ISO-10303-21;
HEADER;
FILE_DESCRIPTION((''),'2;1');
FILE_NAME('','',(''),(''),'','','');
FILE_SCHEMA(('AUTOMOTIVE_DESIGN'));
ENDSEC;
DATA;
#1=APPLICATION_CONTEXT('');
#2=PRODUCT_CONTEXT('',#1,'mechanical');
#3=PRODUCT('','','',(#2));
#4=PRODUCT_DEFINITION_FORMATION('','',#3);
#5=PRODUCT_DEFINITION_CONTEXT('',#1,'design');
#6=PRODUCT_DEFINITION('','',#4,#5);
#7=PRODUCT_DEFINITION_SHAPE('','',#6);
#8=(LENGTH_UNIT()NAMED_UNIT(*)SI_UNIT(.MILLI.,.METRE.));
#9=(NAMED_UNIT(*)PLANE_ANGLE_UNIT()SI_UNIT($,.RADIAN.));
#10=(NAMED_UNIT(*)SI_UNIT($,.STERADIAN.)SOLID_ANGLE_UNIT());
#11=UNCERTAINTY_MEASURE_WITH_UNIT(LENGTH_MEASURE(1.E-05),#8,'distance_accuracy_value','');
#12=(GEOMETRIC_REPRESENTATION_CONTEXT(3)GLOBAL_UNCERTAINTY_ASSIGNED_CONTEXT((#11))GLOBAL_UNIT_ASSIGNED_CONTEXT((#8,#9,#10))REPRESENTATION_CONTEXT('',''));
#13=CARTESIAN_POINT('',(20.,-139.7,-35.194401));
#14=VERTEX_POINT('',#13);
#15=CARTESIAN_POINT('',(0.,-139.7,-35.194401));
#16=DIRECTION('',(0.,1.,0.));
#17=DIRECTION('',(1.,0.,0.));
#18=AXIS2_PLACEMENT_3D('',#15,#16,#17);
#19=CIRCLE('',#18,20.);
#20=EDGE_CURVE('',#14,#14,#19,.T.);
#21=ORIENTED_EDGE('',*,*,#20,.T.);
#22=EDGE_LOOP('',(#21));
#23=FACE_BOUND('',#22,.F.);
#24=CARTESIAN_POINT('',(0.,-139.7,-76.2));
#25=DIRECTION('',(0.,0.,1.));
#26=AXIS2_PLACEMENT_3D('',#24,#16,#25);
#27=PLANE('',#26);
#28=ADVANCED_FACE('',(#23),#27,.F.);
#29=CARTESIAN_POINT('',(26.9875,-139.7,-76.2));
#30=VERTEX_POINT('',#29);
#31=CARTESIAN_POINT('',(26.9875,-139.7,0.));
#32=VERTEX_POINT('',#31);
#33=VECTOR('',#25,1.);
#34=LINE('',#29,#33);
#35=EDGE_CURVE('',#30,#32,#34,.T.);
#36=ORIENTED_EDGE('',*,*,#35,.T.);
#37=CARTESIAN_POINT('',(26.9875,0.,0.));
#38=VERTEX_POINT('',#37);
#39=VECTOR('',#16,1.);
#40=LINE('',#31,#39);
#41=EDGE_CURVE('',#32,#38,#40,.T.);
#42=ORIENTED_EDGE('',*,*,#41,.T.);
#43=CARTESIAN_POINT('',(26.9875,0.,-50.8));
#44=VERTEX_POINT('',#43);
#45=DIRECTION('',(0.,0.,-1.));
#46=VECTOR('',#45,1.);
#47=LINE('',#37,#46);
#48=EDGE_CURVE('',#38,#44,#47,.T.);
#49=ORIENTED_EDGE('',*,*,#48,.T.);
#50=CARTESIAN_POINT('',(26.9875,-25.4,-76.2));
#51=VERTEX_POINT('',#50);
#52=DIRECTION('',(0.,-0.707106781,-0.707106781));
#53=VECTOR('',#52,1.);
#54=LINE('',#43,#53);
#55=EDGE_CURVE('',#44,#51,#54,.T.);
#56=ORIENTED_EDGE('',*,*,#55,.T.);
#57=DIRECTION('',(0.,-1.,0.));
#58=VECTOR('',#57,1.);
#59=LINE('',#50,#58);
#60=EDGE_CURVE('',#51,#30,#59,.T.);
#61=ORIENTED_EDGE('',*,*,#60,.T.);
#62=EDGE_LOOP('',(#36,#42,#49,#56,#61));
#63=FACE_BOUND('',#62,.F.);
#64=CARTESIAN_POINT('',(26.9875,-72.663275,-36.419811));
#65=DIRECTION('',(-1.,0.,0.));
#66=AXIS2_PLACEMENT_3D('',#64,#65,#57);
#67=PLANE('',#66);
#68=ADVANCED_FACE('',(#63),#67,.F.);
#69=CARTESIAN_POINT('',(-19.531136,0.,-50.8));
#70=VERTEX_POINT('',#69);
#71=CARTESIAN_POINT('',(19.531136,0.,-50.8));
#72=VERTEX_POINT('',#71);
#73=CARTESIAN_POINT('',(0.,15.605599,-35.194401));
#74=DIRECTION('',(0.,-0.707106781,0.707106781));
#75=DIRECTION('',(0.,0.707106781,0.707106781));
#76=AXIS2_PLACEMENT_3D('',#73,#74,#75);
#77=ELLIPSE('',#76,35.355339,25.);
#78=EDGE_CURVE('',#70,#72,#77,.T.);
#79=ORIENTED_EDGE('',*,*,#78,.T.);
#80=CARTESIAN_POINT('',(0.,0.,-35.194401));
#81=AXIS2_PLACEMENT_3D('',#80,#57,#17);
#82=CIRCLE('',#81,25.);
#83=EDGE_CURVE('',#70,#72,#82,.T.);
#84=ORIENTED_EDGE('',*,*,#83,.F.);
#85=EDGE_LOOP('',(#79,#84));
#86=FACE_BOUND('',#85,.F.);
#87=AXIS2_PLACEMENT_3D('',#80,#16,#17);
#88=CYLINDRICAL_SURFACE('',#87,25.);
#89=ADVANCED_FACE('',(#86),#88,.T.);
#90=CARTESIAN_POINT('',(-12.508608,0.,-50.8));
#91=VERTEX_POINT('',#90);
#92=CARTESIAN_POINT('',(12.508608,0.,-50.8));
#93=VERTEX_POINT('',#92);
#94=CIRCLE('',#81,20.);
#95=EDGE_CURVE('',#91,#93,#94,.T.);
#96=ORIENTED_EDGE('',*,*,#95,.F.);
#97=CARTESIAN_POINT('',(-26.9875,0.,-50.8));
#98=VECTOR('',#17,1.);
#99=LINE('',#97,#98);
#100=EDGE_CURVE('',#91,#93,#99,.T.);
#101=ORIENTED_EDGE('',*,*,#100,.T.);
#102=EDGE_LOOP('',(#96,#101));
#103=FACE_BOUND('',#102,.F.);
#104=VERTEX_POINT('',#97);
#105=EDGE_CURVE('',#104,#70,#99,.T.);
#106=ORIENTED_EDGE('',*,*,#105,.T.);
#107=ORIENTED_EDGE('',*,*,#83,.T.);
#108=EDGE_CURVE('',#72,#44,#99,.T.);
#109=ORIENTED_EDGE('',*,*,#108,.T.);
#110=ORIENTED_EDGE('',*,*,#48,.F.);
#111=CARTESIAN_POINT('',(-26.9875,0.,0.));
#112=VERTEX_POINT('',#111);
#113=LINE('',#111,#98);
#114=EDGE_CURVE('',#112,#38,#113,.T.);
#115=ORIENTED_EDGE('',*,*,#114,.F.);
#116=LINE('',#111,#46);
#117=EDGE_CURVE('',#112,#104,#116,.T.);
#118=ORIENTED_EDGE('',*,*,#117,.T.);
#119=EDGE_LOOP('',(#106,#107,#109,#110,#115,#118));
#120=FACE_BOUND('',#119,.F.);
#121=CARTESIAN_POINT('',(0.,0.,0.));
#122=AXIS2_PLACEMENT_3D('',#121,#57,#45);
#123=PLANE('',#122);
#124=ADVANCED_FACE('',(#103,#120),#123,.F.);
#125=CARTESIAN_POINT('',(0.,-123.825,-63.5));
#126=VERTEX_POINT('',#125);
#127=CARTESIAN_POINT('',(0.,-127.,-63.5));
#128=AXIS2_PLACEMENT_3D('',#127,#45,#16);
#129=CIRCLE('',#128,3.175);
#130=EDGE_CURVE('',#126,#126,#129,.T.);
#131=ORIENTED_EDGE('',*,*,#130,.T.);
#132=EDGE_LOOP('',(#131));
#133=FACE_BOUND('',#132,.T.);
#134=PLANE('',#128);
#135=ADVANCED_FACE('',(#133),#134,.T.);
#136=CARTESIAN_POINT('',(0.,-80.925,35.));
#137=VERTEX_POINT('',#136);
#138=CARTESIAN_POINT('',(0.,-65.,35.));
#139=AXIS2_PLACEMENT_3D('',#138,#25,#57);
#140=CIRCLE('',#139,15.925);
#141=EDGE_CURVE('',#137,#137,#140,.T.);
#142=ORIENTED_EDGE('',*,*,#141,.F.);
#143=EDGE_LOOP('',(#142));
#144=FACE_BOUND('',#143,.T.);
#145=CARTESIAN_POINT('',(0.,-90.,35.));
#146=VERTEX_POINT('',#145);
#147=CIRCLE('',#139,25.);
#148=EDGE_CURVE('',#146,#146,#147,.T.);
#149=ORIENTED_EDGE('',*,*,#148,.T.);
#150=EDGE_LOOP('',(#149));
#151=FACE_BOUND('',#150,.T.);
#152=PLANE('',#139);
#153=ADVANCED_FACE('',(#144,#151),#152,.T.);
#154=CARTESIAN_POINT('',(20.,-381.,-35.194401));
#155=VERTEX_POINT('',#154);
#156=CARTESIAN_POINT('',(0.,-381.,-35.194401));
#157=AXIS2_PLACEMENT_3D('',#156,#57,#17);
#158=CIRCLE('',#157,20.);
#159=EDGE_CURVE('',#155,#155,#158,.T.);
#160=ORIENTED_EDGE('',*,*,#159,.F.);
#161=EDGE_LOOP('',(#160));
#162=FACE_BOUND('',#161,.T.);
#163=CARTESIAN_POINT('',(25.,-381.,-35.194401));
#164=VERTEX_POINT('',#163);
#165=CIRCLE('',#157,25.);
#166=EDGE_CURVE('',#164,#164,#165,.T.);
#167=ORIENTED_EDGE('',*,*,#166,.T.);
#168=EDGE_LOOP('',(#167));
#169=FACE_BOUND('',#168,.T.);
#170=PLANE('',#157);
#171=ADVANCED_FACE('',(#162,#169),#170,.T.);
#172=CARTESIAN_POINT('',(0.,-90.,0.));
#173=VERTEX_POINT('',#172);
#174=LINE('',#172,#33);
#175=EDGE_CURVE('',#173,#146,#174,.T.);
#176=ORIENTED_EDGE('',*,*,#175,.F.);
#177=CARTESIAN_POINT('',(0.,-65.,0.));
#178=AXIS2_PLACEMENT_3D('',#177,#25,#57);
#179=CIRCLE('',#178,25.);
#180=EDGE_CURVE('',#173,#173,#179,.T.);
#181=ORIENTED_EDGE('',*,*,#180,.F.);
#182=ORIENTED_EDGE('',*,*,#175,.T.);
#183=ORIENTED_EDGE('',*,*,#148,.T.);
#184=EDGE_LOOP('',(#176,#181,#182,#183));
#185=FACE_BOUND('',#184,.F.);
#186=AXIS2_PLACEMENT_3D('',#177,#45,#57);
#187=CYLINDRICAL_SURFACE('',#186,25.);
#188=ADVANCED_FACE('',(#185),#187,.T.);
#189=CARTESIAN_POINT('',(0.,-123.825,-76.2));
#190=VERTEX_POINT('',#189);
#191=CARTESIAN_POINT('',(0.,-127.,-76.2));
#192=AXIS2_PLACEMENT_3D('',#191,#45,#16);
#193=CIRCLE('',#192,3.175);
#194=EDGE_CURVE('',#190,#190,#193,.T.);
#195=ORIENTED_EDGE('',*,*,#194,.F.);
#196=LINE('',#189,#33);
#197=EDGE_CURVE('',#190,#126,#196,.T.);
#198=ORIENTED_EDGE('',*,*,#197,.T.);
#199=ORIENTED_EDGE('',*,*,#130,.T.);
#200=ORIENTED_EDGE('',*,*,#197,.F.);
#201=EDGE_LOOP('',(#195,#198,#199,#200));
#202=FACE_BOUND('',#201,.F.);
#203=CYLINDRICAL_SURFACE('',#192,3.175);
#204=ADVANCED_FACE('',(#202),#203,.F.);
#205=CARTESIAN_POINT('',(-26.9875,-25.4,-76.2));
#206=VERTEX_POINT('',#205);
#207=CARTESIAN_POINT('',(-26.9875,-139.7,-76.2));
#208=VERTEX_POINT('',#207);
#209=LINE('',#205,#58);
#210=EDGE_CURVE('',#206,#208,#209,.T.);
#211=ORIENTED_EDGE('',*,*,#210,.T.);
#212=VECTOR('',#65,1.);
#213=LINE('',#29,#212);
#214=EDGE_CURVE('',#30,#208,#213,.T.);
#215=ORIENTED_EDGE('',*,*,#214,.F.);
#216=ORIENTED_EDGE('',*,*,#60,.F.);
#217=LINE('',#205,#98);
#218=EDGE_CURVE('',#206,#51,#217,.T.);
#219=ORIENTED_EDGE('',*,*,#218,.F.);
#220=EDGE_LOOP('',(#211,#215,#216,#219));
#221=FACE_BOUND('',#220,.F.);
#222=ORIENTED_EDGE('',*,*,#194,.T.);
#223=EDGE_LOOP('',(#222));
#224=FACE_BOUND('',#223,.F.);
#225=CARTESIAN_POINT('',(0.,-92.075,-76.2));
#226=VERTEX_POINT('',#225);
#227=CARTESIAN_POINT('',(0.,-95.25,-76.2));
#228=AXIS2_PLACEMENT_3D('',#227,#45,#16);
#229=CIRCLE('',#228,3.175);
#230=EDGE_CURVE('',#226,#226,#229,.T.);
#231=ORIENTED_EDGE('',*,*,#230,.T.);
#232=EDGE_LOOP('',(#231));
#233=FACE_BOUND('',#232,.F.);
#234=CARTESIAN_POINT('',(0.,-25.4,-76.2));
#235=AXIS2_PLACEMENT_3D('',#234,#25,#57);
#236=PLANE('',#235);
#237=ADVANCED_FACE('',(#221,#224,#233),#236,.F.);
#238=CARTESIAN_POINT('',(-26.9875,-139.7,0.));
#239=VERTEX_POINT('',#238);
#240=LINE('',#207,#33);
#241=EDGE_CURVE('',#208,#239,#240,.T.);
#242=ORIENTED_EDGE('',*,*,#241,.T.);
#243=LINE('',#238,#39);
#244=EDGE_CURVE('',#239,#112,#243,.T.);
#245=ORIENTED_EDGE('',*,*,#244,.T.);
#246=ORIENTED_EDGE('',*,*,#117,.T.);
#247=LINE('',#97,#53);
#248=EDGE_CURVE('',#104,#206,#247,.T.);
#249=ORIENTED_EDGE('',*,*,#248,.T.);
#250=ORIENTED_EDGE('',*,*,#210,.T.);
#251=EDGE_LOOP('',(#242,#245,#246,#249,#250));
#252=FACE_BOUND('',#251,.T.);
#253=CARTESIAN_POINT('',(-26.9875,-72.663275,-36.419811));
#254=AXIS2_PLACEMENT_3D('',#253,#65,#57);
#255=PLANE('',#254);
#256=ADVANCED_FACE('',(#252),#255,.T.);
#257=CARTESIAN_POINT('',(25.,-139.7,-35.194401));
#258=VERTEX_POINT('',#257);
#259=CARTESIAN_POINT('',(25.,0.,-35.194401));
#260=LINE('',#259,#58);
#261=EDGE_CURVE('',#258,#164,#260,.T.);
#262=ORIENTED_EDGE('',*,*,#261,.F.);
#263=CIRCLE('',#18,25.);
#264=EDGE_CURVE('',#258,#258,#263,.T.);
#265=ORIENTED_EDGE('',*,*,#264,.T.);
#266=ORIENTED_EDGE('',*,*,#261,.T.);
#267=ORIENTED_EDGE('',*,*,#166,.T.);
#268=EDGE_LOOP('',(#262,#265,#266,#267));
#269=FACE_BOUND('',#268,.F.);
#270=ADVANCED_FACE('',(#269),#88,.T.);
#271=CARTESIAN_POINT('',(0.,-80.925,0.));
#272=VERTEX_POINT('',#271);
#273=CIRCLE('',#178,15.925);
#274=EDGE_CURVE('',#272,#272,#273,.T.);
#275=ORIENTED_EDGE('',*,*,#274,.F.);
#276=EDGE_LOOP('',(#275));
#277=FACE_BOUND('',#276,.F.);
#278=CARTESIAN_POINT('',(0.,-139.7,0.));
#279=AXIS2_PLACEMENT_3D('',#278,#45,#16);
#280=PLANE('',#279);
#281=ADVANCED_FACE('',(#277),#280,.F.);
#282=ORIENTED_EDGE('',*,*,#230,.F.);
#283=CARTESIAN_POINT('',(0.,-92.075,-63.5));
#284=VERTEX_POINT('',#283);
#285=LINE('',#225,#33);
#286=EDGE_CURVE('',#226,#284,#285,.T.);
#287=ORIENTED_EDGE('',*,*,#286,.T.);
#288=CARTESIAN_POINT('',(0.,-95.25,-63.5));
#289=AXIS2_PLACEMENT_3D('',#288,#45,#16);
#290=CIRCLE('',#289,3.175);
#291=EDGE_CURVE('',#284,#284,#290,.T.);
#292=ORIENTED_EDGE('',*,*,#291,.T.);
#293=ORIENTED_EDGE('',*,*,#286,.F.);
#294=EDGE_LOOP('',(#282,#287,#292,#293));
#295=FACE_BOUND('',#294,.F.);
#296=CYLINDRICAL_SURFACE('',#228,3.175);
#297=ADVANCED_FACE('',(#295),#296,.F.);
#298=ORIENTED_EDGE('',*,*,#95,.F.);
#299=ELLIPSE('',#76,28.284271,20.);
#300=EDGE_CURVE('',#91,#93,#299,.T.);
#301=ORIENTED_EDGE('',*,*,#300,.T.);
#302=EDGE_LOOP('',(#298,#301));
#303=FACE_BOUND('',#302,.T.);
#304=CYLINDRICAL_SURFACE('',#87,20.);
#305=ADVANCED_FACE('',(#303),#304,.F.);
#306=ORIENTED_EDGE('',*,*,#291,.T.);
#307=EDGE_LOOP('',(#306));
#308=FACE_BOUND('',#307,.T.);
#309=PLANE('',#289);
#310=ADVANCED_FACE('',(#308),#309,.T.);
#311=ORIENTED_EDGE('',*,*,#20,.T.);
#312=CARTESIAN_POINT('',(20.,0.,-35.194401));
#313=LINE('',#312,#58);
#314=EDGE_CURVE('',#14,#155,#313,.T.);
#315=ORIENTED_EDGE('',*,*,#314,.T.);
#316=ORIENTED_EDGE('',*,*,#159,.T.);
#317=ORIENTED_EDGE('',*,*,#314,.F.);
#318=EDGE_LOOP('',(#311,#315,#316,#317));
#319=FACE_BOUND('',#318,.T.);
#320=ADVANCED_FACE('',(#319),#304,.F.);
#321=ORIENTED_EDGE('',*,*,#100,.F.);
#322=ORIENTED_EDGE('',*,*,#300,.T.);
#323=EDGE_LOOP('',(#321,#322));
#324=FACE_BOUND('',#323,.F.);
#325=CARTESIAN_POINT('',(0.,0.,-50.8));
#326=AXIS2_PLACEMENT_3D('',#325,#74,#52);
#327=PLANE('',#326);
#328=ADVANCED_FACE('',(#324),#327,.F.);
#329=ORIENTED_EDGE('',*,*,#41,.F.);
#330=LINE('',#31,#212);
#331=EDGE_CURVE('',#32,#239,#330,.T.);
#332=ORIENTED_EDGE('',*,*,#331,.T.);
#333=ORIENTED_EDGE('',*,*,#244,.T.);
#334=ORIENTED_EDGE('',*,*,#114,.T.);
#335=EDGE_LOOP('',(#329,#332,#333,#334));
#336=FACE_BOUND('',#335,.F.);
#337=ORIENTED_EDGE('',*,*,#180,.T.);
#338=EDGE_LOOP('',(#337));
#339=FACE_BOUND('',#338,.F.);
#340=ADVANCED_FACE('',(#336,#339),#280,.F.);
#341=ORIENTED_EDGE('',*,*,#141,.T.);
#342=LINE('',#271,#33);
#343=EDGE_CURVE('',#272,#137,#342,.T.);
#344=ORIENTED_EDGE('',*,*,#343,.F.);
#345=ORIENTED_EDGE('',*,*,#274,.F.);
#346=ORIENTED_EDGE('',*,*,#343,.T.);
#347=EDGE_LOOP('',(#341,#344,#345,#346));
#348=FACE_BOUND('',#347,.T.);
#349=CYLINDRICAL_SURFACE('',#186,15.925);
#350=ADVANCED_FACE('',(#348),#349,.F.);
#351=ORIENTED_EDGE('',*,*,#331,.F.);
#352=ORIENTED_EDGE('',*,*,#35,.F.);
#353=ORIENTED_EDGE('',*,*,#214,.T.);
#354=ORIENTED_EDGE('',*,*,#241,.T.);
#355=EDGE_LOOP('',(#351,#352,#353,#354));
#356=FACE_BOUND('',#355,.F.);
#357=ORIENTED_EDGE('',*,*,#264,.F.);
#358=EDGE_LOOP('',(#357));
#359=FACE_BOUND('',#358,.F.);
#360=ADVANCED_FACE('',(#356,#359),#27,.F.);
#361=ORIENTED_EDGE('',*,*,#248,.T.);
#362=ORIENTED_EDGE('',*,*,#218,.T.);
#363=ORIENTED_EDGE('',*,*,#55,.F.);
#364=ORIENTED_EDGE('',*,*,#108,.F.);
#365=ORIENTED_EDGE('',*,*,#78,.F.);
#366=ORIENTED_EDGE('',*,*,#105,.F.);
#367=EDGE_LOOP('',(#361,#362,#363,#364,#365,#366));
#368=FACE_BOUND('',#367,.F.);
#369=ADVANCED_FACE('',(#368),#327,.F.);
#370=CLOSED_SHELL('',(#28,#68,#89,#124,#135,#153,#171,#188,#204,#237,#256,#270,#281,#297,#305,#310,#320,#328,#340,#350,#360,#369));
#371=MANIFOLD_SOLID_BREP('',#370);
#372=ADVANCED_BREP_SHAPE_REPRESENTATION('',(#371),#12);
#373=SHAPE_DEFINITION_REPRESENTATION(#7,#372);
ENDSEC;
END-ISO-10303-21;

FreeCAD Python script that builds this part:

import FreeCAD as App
import Part
import Sketcher

V = App.Vector
Q = App.Units.Quantity

doc = App.newDocument("Part")
body = doc.addObject("PartDesign::Body", "Body")

sketch1 = body.newObject("Sketcher::SketchObject", "Sketch")
sketch1.AttachmentSupport = (doc.getObject("YZ_Plane"), [""])
sketch1.MapMode = "FlatFace"
sketch1.addGeometry([
    Part.LineSegment(V(-139.7, -76.2, 0), V(-25.4, -76.2, 0)),
    Part.LineSegment(V(-25.4, -76.2, 0), V(0, -50.8, 0)),
    Part.LineSegment(V(0, -50.8, 0), V(0, 0, 0)),
    Part.LineSegment(V(0, 0, 0), V(-139.7, 0, 0)),
    Part.LineSegment(V(-139.7, 0, 0), V(-139.7, -76.2, 0)),
], False)
sketch1.addConstraint([
    Sketcher.Constraint("Coincident", 0, 2, 1, 1),
    Sketcher.Constraint("Coincident", 1, 2, 2, 1),
    Sketcher.Constraint("Coincident", 2, 2, 3, 1),
    Sketcher.Constraint("Coincident", 3, 2, 4, 1),
    Sketcher.Constraint("Coincident", 4, 2, 0, 1),
    Sketcher.Constraint("Horizontal", 0),
    Sketcher.Constraint("Vertical", 2),
    Sketcher.Constraint("Horizontal", 3),
    Sketcher.Constraint("Vertical", 4),
    Sketcher.Constraint("Coincident", 2, 2, -1, 1),
    Sketcher.Constraint("DistanceY", 2, 1, 2, 2, Q("2 in")),
    Sketcher.Constraint("DistanceY", 4, 2, 4, 1, Q("3 in")),
    Sketcher.Constraint("DistanceX", 0, 1, 0, 2, Q("4.5 in")),
    Sketcher.Constraint("DistanceX", 3, 2, 3, 1, Q("5.5 in")),
])
pad1 = body.newObject("PartDesign::Pad", "Pad")
pad1.Profile = sketch1
pad1.Length = Q("2.125 in")
pad1.Midplane = True

sketch2 = body.newObject("Sketcher::SketchObject", "Sketch001")
sketch2.AttachmentSupport = (doc.getObject("XY_Plane"), [""])
sketch2.MapMode = "FlatFace"
sketch2.addGeometry([
    Part.Circle(V(0, -65, 0), V(0, 0, 1), 25),
    Part.Circle(V(0, -65, 0), V(0, 0, 1), 15.925),
], False)
sketch2.addConstraint([
    Sketcher.Constraint("Coincident", 1, 3, 0, 3),
    Sketcher.Constraint("PointOnObject", 0, 3, -2),
    Sketcher.Constraint("Diameter", 0, 50.0),
    Sketcher.Constraint("Diameter", 1, 31.85),
    Sketcher.Constraint("DistanceY", 0, 3, -1, 1, 65.0),
])
pad2 = body.newObject("PartDesign::Pad", "Pad001")
pad2.Profile = sketch2
pad2.Length = 35

sketch3 = body.newObject("Sketcher::SketchObject", "Sketch002")
sketch3.AttachmentSupport = (doc.getObject("XZ_Plane"), [""])
sketch3.MapMode = "FlatFace"
sketch3.addGeometry([
    Part.Circle(V(0, -35.194401, 0), V(0, 0, 1), 25),
    Part.Circle(V(0, -35.194401, 0), V(0, 0, 1), 20),
], False)
sketch3.addConstraint([
    Sketcher.Constraint("Coincident", 1, 3, 0, 3),
    Sketcher.Constraint("PointOnObject", 0, 3, -2),
    Sketcher.Constraint("Diameter", 0, 50.0),
    Sketcher.Constraint("Diameter", 1, 40.0),
    Sketcher.Constraint("DistanceY", 0, 3, -1, 1, 35.194401),
])
pad3 = body.newObject("PartDesign::Pad", "Pad002")
pad3.Profile = sketch3
pad3.Length = Q("15 in")

sketch4 = body.newObject("Sketcher::SketchObject", "Sketch003")
sketch4.AttachmentSupport = (doc.getObject("XY_Plane"), [""])
sketch4.MapMode = "FlatFace"
sketch4.AttachmentOffset = App.Placement(V(0, 0, -3 * 25.4), App.Rotation())
sketch4.addGeometry([
    Part.Circle(V(0, -127, 0), V(0, 0, 1), 3.175),
    Part.Circle(V(0, -95.25, 0), V(0, 0, 1), 3.175),
], False)
sketch4.addConstraint([
    Sketcher.Constraint("Equal", 0, 1),
    Sketcher.Constraint("PointOnObject", 0, 3, -2),
    Sketcher.Constraint("PointOnObject", 1, 3, -2),
    Sketcher.Constraint("Diameter", 0, Q("0.25 in")),
    Sketcher.Constraint("DistanceY", 0, 3, -1, 1, Q("5 in")),
    Sketcher.Constraint("DistanceY", 1, 3, -1, 1, Q("3.75 in")),
])
pocket1 = body.newObject("PartDesign::Pocket", "Pocket")
pocket1.Profile = sketch4
pocket1.Length = Q("0.5 in")
pocket1.Reversed = True

doc.recompute()
